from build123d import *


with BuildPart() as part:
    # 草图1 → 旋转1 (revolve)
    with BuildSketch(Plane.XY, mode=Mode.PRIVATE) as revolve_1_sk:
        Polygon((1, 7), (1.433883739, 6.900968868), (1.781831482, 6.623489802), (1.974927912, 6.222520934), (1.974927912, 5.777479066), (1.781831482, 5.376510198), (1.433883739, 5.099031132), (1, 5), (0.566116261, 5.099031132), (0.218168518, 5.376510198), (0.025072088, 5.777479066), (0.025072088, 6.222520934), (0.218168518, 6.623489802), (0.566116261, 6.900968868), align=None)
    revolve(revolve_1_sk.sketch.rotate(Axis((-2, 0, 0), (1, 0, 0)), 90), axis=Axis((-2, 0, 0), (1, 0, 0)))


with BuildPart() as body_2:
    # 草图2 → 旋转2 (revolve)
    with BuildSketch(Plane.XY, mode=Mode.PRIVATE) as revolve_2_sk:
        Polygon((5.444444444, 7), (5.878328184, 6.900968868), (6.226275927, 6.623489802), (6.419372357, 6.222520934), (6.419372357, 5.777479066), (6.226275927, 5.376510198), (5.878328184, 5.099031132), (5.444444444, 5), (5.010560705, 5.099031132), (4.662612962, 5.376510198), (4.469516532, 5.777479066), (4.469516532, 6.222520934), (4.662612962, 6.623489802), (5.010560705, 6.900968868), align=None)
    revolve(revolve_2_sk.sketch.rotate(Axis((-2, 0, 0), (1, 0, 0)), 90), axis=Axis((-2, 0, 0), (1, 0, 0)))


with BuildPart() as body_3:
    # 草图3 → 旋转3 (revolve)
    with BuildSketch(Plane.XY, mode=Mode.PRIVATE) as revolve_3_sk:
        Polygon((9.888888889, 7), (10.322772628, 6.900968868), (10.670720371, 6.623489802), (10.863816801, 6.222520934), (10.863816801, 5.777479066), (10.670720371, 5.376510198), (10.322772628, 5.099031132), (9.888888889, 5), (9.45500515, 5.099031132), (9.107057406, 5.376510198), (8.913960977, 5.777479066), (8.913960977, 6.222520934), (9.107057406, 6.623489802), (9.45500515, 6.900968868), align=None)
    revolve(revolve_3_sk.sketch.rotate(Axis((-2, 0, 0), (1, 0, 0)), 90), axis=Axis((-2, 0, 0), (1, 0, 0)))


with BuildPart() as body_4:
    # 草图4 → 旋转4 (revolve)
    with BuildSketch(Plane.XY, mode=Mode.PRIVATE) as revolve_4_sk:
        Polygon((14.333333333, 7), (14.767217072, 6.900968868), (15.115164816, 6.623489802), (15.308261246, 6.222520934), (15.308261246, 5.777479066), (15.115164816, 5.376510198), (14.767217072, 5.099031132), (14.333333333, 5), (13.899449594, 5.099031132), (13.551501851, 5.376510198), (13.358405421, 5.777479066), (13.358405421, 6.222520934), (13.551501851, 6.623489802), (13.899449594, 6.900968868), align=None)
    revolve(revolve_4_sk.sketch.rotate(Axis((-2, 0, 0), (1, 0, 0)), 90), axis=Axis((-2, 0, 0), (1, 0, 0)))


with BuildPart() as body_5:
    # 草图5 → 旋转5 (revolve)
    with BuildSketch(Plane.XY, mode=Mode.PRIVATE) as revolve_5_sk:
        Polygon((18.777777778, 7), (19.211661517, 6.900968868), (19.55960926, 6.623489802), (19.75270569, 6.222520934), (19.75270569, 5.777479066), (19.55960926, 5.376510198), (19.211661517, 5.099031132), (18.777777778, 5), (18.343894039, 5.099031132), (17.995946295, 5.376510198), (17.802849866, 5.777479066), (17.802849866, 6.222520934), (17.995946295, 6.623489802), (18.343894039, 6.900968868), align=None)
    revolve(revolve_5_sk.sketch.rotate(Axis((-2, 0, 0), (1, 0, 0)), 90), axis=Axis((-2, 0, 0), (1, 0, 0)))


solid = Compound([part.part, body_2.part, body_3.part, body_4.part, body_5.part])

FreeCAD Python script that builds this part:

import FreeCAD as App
import Part
import Sketcher


def add_polygon(sketch, points):
    """Adds a closed chain of lines whose ends are joined by coincident constraints."""
    first, n = sketch.GeometryCount, len(points)
    for a, b in zip(points, points[1:] + points[:1]):
        sketch.addGeometry(Part.LineSegment(App.Vector(*a, 0), App.Vector(*b, 0)), False)
    for i in range(n):
        sketch.addConstraint(Sketcher.Constraint("Coincident", first + i, 2, first + (i + 1) % n, 1))

doc = App.newDocument("Part")
body = doc.addObject("PartDesign::Body", "Body")

# Sketch on XY plane
sketch1 = body.newObject("Sketcher::SketchObject", "Sketch")
sketch1.AttachmentSupport = (doc.getObject("XY_Plane"), [""])
sketch1.MapMode = "FlatFace"
add_polygon(sketch1, [(1.43, 6.9), (1, 7), (0.57, 6.9), (0.22, 6.62), (0.03, 6.22), (0.03, 5.78), (0.22, 5.38), (0.57, 5.1), (1, 5), (1.43, 5.1), (1.78, 5.38), (1.97, 5.78), (1.97, 6.22), (1.78, 6.62)])  # lines 0-13
sketch1.addConstraint(Sketcher.Constraint("Vertical", 4))
sketch1.addConstraint(Sketcher.Constraint("Vertical", 11))
sketch1.addConstraint(Sketcher.Constraint("Parallel", 0, 7))
sketch1.addConstraint(Sketcher.Constraint("Parallel", 1, 8))
sketch1.addConstraint(Sketcher.Constraint("Parallel", 2, 9))
sketch1.addConstraint(Sketcher.Constraint("Parallel", 3, 10))
sketch1.addConstraint(Sketcher.Constraint("Parallel", 5, 12))
sketch1.addConstraint(Sketcher.Constraint("Parallel", 6, 13))
sketch1.addConstraint(Sketcher.Constraint("Horizontal", 6, 2, 8, 2))
sketch1.addConstraint(Sketcher.Constraint("Horizontal", 5, 2, 9, 2))
sketch1.addConstraint(Sketcher.Constraint("Horizontal", 4, 2, 10, 2))
sketch1.addConstraint(Sketcher.Constraint("Horizontal", 3, 2, 11, 2))
sketch1.addConstraint(Sketcher.Constraint("Horizontal", 2, 2, 12, 2))
sketch1.addConstraint(Sketcher.Constraint("Horizontal", 1, 2, 13, 2))
sketch1.addConstraint(Sketcher.Constraint("Vertical", 2, 2, 5, 2))
sketch1.addConstraint(Sketcher.Constraint("Vertical", 1, 2, 6, 2))
sketch1.addConstraint(Sketcher.Constraint("Vertical", 0, 2, 7, 2))
sketch1.addConstraint(Sketcher.Constraint("Vertical", 9, 2, 12, 2))
sketch1.addConstraint(Sketcher.Constraint("Vertical", 8, 2, 13, 2))
sketch1.addConstraint(Sketcher.Constraint("Equal", 1, 2))
sketch1.addConstraint(Sketcher.Constraint("Equal", 2, 3))
sketch1.addConstraint(Sketcher.Constraint("DistanceX", -1, 1, 0, 2, 1.0))
sketch1.addConstraint(Sketcher.Constraint("DistanceY", -1, 1, 0, 2, 7.0))
sketch1.addConstraint(Sketcher.Constraint("DistanceY", -1, 1, 7, 2, 5.0))
sketch1.addConstraint(Sketcher.Constraint("DistanceY", 4, 2, 4, 1, 0.445042))
sketch1.addConstraint(Sketcher.Constraint("Distance", 0, 0.445042))
sketch1.addConstraint(Sketcher.Constraint("DistanceY", -1, 1, 1, 2, 6.900969))
sketch1.addConstraint(Sketcher.Constraint("DistanceX", -1, 1, 2, 2, 0.218169))
revolution = body.newObject("PartDesign::Revolution", "Revolution")
revolution.Profile = sketch1
revolution.ReferenceAxis = (sketch1, ["H_Axis"])
revolution.Angle = 360
body2 = doc.addObject("PartDesign::Body", "Body001")

# Sketch on XY plane
sketch2 = body2.newObject("Sketcher::SketchObject", "Sketch001")
sketch2.AttachmentSupport = (doc.getObject("XY_Plane001"), [""])
sketch2.MapMode = "FlatFace"
add_polygon(sketch2, [(5.88, 6.9), (5.44, 7), (5.01, 6.9), (4.66, 6.62), (4.47, 6.22), (4.47, 5.78), (4.66, 5.38), (5.01, 5.1), (5.44, 5), (5.88, 5.1), (6.23, 5.38), (6.42, 5.78), (6.42, 6.22), (6.23, 6.62)])  # lines 0-13
sketch2.addConstraint(Sketcher.Constraint("Vertical", 4))
sketch2.addConstraint(Sketcher.Constraint("Vertical", 11))
sketch2.addConstraint(Sketcher.Constraint("Parallel", 0, 7))
sketch2.addConstraint(Sketcher.Constraint("Parallel", 1, 8))
sketch2.addConstraint(Sketcher.Constraint("Parallel", 2, 9))
sketch2.addConstraint(Sketcher.Constraint("Parallel", 3, 10))
sketch2.addConstraint(Sketcher.Constraint("Parallel", 5, 12))
sketch2.addConstraint(Sketcher.Constraint("Parallel", 6, 13))
sketch2.addConstraint(Sketcher.Constraint("Horizontal", 6, 2, 8, 2))
sketch2.addConstraint(Sketcher.Constraint("Horizontal", 5, 2, 9, 2))
sketch2.addConstraint(Sketcher.Constraint("Horizontal", 4, 2, 10, 2))
sketch2.addConstraint(Sketcher.Constraint("Horizontal", 3, 2, 11, 2))
sketch2.addConstraint(Sketcher.Constraint("Horizontal", 2, 2, 12, 2))
sketch2.addConstraint(Sketcher.Constraint("Horizontal", 1, 2, 13, 2))
sketch2.addConstraint(Sketcher.Constraint("Vertical", 2, 2, 5, 2))
sketch2.addConstraint(Sketcher.Constraint("Vertical", 1, 2, 6, 2))
sketch2.addConstraint(Sketcher.Constraint("Vertical", 0, 2, 7, 2))
sketch2.addConstraint(Sketcher.Constraint("Vertical", 9, 2, 12, 2))
sketch2.addConstraint(Sketcher.Constraint("Vertical", 8, 2, 13, 2))
sketch2.addConstraint(Sketcher.Constraint("Equal", 1, 2))
sketch2.addConstraint(Sketcher.Constraint("Equal", 2, 3))
sketch2.addConstraint(Sketcher.Constraint("DistanceY", -1, 1, 0, 2, 7.0))
sketch2.addConstraint(Sketcher.Constraint("DistanceY", -1, 1, 7, 2, 5.0))
sketch2.addConstraint(Sketcher.Constraint("DistanceY", 4, 2, 4, 1, 0.445042))
sketch2.addConstraint(Sketcher.Constraint("Distance", 0, 0.445042))
sketch2.addConstraint(Sketcher.Constraint("DistanceX", -1, 1, 1, 2, 5.010561))
sketch2.addConstraint(Sketcher.Constraint("DistanceY", -1, 1, 1, 2, 6.900969))
sketch2.addConstraint(Sketcher.Constraint("DistanceY", -1, 1, 2, 2, 6.62349))
revolution2 = body2.newObject("PartDesign::Revolution", "Revolution001")
revolution2.Profile = sketch2
revolution2.ReferenceAxis = (sketch2, ["H_Axis"])
revolution2.Angle = 360
body3 = doc.addObject("PartDesign::Body", "Body002")

# Sketch on XY plane
sketch3 = body3.newObject("Sketcher::SketchObject", "Sketch002")
sketch3.AttachmentSupport = (doc.getObject("XY_Plane002"), [""])
sketch3.MapMode = "FlatFace"
add_polygon(sketch3, [(10.32, 6.9), (9.89, 7), (9.46, 6.9), (9.11, 6.62), (8.91, 6.22), (8.91, 5.78), (9.11, 5.38), (9.46, 5.1), (9.89, 5), (10.32, 5.1), (10.67, 5.38), (10.86, 5.78), (10.86, 6.22), (10.67, 6.62)])  # lines 0-13
sketch3.addConstraint(Sketcher.Constraint("Vertical", 4))
sketch3.addConstraint(Sketcher.Constraint("Vertical", 11))
sketch3.addConstraint(Sketcher.Constraint("Parallel", 0, 7))
sketch3.addConstraint(Sketcher.Constraint("Parallel", 1, 8))
sketch3.addConstraint(Sketcher.Constraint("Parallel", 2, 9))
sketch3.addConstraint(Sketcher.Constraint("Parallel", 3, 10))
sketch3.addConstraint(Sketcher.Constraint("Parallel", 5, 12))
sketch3.addConstraint(Sketcher.Constraint("Parallel", 6, 13))
sketch3.addConstraint(Sketcher.Constraint("Horizontal", 6, 2, 8, 2))
sketch3.addConstraint(Sketcher.Constraint("Horizontal", 5, 2, 9, 2))
sketch3.addConstraint(Sketcher.Constraint("Horizontal", 4, 2, 10, 2))
sketch3.addConstraint(Sketcher.Constraint("Horizontal", 3, 2, 11, 2))
sketch3.addConstraint(Sketcher.Constraint("Horizontal", 2, 2, 12, 2))
sketch3.addConstraint(Sketcher.Constraint("Horizontal", 1, 2, 13, 2))
sketch3.addConstraint(Sketcher.Constraint("Vertical", 2, 2, 5, 2))
sketch3.addConstraint(Sketcher.Constraint("Vertical", 1, 2, 6, 2))
sketch3.addConstraint(Sketcher.Constraint("Vertical", 0, 2, 7, 2))
sketch3.addConstraint(Sketcher.Constraint("Vertical", 9, 2, 12, 2))
sketch3.addConstraint(Sketcher.Constraint("Vertical", 8, 2, 13, 2))
sketch3.addConstraint(Sketcher.Constraint("Equal", 1, 2))
sketch3.addConstraint(Sketcher.Constraint("Equal", 2, 3))
sketch3.addConstraint(Sketcher.Constraint("DistanceY", -1, 1, 0, 2, 7.0))
sketch3.addConstraint(Sketcher.Constraint("DistanceY", -1, 1, 7, 2, 5.0))
sketch3.addConstraint(Sketcher.Constraint("DistanceY", 4, 2, 4, 1, 0.445042))
sketch3.addConstraint(Sketcher.Constraint("Distance", 0, 0.445042))
sketch3.addConstraint(Sketcher.Constraint("DistanceX", -1, 1, 0, 2, 9.888889))
sketch3.addConstraint(Sketcher.Constraint("DistanceY", -1, 1, 1, 2, 6.900969))
sketch3.addConstraint(Sketcher.Constraint("DistanceY", -1, 1, 2, 2, 6.62349))
revolution3 = body3.newObject("PartDesign::Revolution", "Revolution002")
revolution3.Profile = sketch3
revolution3.ReferenceAxis = (sketch3, ["H_Axis"])
revolution3.Angle = 360
body4 = doc.addObject("PartDesign::Body", "Body003")

# Sketch on XY plane
sketch4 = body4.newObject("Sketcher::SketchObject", "Sketch003")
sketch4.AttachmentSupport = (doc.getObject("XY_Plane003"), [""])
sketch4.MapMode = "FlatFace"
add_polygon(sketch4, [(14.77, 6.9), (14.33, 7), (13.9, 6.9), (13.55, 6.62), (13.36, 6.22), (13.36, 5.78), (13.55, 5.38), (13.9, 5.1), (14.33, 5), (14.77, 5.1), (15.12, 5.38), (15.31, 5.78), (15.31, 6.22), (15.12, 6.62)])  # lines 0-13
sketch4.addConstraint(Sketcher.Constraint("Vertical", 4))
sketch4.addConstraint(Sketcher.Constraint("Vertical", 11))
sketch4.addConstraint(Sketcher.Constraint("Parallel", 0, 7))
sketch4.addConstraint(Sketcher.Constraint("Parallel", 1, 8))
sketch4.addConstraint(Sketcher.Constraint("Parallel", 2, 9))
sketch4.addConstraint(Sketcher.Constraint("Parallel", 3, 10))
sketch4.addConstraint(Sketcher.Constraint("Parallel", 5, 12))
sketch4.addConstraint(Sketcher.Constraint("Parallel", 6, 13))
sketch4.addConstraint(Sketcher.Constraint("Horizontal", 6, 2, 8, 2))
sketch4.addConstraint(Sketcher.Constraint("Horizontal", 5, 2, 9, 2))
sketch4.addConstraint(Sketcher.Constraint("Horizontal", 4, 2, 10, 2))
sketch4.addConstraint(Sketcher.Constraint("Horizontal", 3, 2, 11, 2))
sketch4.addConstraint(Sketcher.Constraint("Horizontal", 2, 2, 12, 2))
sketch4.addConstraint(Sketcher.Constraint("Horizontal", 1, 2, 13, 2))
sketch4.addConstraint(Sketcher.Constraint("Vertical", 2, 2, 5, 2))
sketch4.addConstraint(Sketcher.Constraint("Vertical", 1, 2, 6, 2))
sketch4.addConstraint(Sketcher.Constraint("Vertical", 0, 2, 7, 2))
sketch4.addConstraint(Sketcher.Constraint("Vertical", 9, 2, 12, 2))
sketch4.addConstraint(Sketcher.Constraint("Vertical", 8, 2, 13, 2))
sketch4.addConstraint(Sketcher.Constraint("Equal", 1, 2))
sketch4.addConstraint(Sketcher.Constraint("Equal", 2, 3))
sketch4.addConstraint(Sketcher.Constraint("DistanceY", -1, 1, 0, 2, 7.0))
sketch4.addConstraint(Sketcher.Constraint("DistanceY", -1, 1, 7, 2, 5.0))
sketch4.addConstraint(Sketcher.Constraint("DistanceY", 4, 2, 4, 1, 0.445042))
sketch4.addConstraint(Sketcher.Constraint("DistanceX", -1, 1, 2, 2, 13.551502))
sketch4.addConstraint(Sketcher.Constraint("Distance", 0, 0.445042))
sketch4.addConstraint(Sketcher.Constraint("DistanceX", -1, 1, 1, 2, 13.89945))
sketch4.addConstraint(Sketcher.Constraint("DistanceY", -1, 1, 1, 2, 6.900969))
revolution4 = body4.newObject("PartDesign::Revolution", "Revolution003")
revolution4.Profile = sketch4
revolution4.ReferenceAxis = (sketch4, ["H_Axis"])
revolution4.Angle = 360
body5 = doc.addObject("PartDesign::Body", "Body004")

# Sketch on XY plane
sketch5 = body5.newObject("Sketcher::SketchObject", "Sketch004")
sketch5.AttachmentSupport = (doc.getObject("XY_Plane004"), [""])
sketch5.MapMode = "FlatFace"
add_polygon(sketch5, [(19.21, 6.9), (18.78, 7), (18.34, 6.9), (18, 6.62), (17.8, 6.22), (17.8, 5.78), (18, 5.38), (18.34, 5.1), (18.78, 5), (19.21, 5.1), (19.56, 5.38), (19.75, 5.78), (19.75, 6.22), (19.56, 6.62)])  # lines 0-13
sketch5.addConstraint(Sketcher.Constraint("Vertical", 4))
sketch5.addConstraint(Sketcher.Constraint("Vertical", 11))
sketch5.addConstraint(Sketcher.Constraint("Parallel", 0, 7))
sketch5.addConstraint(Sketcher.Constraint("Parallel", 1, 8))
sketch5.addConstraint(Sketcher.Constraint("Parallel", 2, 9))
sketch5.addConstraint(Sketcher.Constraint("Parallel", 3, 10))
sketch5.addConstraint(Sketcher.Constraint("Parallel", 5, 12))
sketch5.addConstraint(Sketcher.Constraint("Parallel", 6, 13))
sketch5.addConstraint(Sketcher.Constraint("Horizontal", 6, 2, 8, 2))
sketch5.addConstraint(Sketcher.Constraint("Horizontal", 5, 2, 9, 2))
sketch5.addConstraint(Sketcher.Constraint("Horizontal", 4, 2, 10, 2))
sketch5.addConstraint(Sketcher.Constraint("Horizontal", 3, 2, 11, 2))
sketch5.addConstraint(Sketcher.Constraint("Horizontal", 2, 2, 12, 2))
sketch5.addConstraint(Sketcher.Constraint("Horizontal", 1, 2, 13, 2))
sketch5.addConstraint(Sketcher.Constraint("Vertical", 2, 2, 5, 2))
sketch5.addConstraint(Sketcher.Constraint("Vertical", 1, 2, 6, 2))
sketch5.addConstraint(Sketcher.Constraint("Vertical", 0, 2, 7, 2))
sketch5.addConstraint(Sketcher.Constraint("Vertical", 9, 2, 12, 2))
sketch5.addConstraint(Sketcher.Constraint("Vertical", 8, 2, 13, 2))
sketch5.addConstraint(Sketcher.Constraint("Equal", 1, 2))
sketch5.addConstraint(Sketcher.Constraint("Equal", 2, 3))
sketch5.addConstraint(Sketcher.Constraint("DistanceY", -1, 1, 0, 2, 7.0))
sketch5.addConstraint(Sketcher.Constraint("DistanceY", -1, 1, 7, 2, 5.0))
sketch5.addConstraint(Sketcher.Constraint("DistanceY", 4, 2, 4, 1, 0.445042))
sketch5.addConstraint(Sketcher.Constraint("Distance", 0, 0.445042))
sketch5.addConstraint(Sketcher.Constraint("DistanceY", -1, 1, 1, 2, 6.900969))
sketch5.addConstraint(Sketcher.Constraint("DistanceY", -1, 1, 2, 2, 6.62349))
sketch5.addConstraint(Sketcher.Constraint("DistanceX", -1, 1, 3, 2, 17.80285))
revolution5 = body5.newObject("PartDesign::Revolution", "Revolution004")
revolution5.Profile = sketch5
revolution5.ReferenceAxis = (sketch5, ["H_Axis"])
revolution5.Angle = 360

doc.recompute()
